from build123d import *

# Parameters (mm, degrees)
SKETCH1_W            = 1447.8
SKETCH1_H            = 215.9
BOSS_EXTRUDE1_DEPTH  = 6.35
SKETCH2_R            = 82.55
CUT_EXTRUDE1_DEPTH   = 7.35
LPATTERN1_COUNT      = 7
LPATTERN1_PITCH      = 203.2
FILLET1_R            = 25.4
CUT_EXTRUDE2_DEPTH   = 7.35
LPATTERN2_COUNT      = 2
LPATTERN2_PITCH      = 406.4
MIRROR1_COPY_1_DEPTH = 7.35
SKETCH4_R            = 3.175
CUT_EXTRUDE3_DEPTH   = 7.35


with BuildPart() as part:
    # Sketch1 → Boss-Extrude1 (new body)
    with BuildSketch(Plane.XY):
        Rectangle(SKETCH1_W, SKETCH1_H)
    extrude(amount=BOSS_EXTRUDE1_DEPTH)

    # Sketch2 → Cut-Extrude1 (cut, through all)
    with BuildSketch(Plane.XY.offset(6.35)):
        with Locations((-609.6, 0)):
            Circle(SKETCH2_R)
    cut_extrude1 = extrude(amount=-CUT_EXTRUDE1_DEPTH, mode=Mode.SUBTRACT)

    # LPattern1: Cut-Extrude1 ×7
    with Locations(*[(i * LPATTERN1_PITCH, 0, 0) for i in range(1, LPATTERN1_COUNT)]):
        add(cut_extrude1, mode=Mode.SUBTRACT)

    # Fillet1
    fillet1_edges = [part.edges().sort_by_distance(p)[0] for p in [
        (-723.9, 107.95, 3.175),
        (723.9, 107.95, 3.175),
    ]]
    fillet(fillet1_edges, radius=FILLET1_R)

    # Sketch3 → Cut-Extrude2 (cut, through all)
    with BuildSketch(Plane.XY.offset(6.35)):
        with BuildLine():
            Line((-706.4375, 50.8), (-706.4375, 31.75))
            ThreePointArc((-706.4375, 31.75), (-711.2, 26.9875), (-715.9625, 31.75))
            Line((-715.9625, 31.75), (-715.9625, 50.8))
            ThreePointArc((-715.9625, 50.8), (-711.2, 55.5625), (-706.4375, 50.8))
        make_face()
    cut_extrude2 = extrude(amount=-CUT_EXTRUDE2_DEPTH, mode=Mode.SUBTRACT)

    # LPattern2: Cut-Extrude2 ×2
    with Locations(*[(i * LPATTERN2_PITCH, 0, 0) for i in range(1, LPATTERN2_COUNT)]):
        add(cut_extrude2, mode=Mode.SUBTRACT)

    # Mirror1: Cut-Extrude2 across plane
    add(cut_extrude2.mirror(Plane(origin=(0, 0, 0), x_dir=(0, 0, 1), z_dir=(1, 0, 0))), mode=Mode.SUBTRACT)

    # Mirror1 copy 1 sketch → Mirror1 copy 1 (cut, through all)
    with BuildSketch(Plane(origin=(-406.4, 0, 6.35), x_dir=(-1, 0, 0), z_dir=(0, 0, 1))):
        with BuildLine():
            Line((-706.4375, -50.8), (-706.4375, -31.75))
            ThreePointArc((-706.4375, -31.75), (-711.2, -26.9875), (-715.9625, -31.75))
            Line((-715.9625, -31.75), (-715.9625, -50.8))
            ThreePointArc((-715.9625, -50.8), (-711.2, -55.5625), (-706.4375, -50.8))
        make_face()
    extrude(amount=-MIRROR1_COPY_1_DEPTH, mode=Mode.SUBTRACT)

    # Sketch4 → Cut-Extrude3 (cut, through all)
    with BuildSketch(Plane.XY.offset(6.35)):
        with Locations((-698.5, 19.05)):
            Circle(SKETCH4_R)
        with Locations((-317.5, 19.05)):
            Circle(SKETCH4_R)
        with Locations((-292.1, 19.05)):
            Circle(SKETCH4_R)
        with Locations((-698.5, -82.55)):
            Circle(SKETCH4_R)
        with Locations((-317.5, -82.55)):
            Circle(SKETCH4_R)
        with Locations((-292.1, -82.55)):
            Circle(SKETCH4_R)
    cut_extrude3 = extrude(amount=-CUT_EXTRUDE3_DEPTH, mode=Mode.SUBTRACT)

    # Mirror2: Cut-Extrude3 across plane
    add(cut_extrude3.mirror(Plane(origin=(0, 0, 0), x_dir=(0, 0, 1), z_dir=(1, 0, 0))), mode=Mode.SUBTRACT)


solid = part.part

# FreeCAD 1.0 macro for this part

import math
import FreeCAD as App
import Part
import Sketcher
Q = App.Units.Quantity


def edges_at(feature, points):
    """Names of the edges that pass closest to the given points."""
    edges = feature.Shape.Edges
    near = lambda p: min(range(len(edges)), key=lambda i: edges[i].distToShape(Part.Vertex(*p))[0])
    return sorted({f"Edge{near(p) + 1}" for p in points})


def add_polygon(sketch, points):
    """Adds a closed chain of lines whose ends are joined by coincident constraints."""
    first, n = sketch.GeometryCount, len(points)
    for a, b in zip(points, points[1:] + points[:1]):
        sketch.addGeometry(Part.LineSegment(App.Vector(*a, 0), App.Vector(*b, 0)), False)
    for i in range(n):
        sketch.addConstraint(Sketcher.Constraint("Coincident", first + i, 2, first + (i + 1) % n, 1))

doc = App.newDocument("Part")
body = doc.addObject("PartDesign::Body", "Body")

# Sketch on XY plane
sketch1 = body.newObject("Sketcher::SketchObject", "Sketch")
sketch1.AttachmentSupport = (doc.getObject("XY_Plane"), [""])
sketch1.MapMode = "FlatFace"
add_polygon(sketch1, [(-724, 108), (-724, -108), (724, -108), (724, 108)])  # lines 0-3
sketch1.addConstraint([
    Sketcher.Constraint("Vertical", 0),
    Sketcher.Constraint("Horizontal", 1),
    Sketcher.Constraint("Vertical", 2),
    Sketcher.Constraint("Horizontal", 3),
    Sketcher.Constraint("Symmetric", 0, 2, 2, 2, -1, 1),
    Sketcher.Constraint("DistanceX", 1, 1, 1, 2, Q("57 in")),
    Sketcher.Constraint("DistanceY", 0, 2, 0, 1, Q("8.5 in")),
])
pad1 = body.newObject("PartDesign::Pad", "Pad")
pad1.Profile = sketch1
pad1.Length = Q("0.25 in")

# Sketch on XY plane
sketch2 = body.newObject("Sketcher::SketchObject", "Sketch001")
sketch2.AttachmentSupport = (doc.getObject("XY_Plane"), [""])
sketch2.MapMode = "FlatFace"
sketch2.AttachmentOffset = App.Placement(App.Vector(0, 0, 0.25 * 25.4), App.Rotation())
sketch2.addGeometry(Part.Circle(App.Vector(-610, 0, 0), App.Vector(0, 0, 1), 83), False)
sketch2.addConstraint([
    Sketcher.Constraint("PointOnObject", 0, 3, -1),
    Sketcher.Constraint("Diameter", 0, Q("6.5 in")),
    Sketcher.Constraint("DistanceX", 0, 3, -1, 1, Q("24 in")),
])
pocket1 = body.newObject("PartDesign::Pocket", "Pocket")
pocket1.Profile = sketch2
pocket1.Type = "ThroughAll"
doc.recompute()

linearpattern = body.newObject("PartDesign::LinearPattern", "LinearPattern")
linearpattern.Originals = [pocket1]
linearpattern.Direction = (doc.getObject("X_Axis"), [""])
linearpattern.Mode = "offset"
linearpattern.Offset = Q("8 in")
linearpattern.Occurrences = 7
body.Tip = linearpattern
doc.recompute()

fillet = body.newObject("PartDesign::Fillet", "Fillet")
fillet.Base = (linearpattern, edges_at(linearpattern, [(-723.9, 107.95, 3.175), (723.9, 107.95, 3.175)]))
fillet.Radius = Q("1 in")

# Sketch on XY plane
sketch3 = body.newObject("Sketcher::SketchObject", "Sketch002")
sketch3.AttachmentSupport = (doc.getObject("XY_Plane"), [""])
sketch3.MapMode = "FlatFace"
sketch3.AttachmentOffset = App.Placement(App.Vector(0, 0, 0.25 * 25.4), App.Rotation())
sketch3.addGeometry([
    Part.LineSegment(App.Vector(-706.4, 31.8, 0), App.Vector(-706.4, 50.8, 0)),
    Part.ArcOfCircle(Part.Circle(App.Vector(-711.2, 50.8, 0), App.Vector(0, 0, 1), 4.8), math.radians(0), math.radians(180)),
    Part.LineSegment(App.Vector(-716, 50.8, 0), App.Vector(-716, 31.8, 0)),
    Part.ArcOfCircle(Part.Circle(App.Vector(-711.2, 31.8, 0), App.Vector(0, 0, 1), 4.8), math.radians(180), math.radians(360)),
], False)
sketch3.addConstraint([
    Sketcher.Constraint("Tangent", 0, 2, 1, 1),
    Sketcher.Constraint("Tangent", 1, 2, 2, 1),
    Sketcher.Constraint("Tangent", 2, 2, 3, 1),
    Sketcher.Constraint("Tangent", 3, 2, 0, 1),
    Sketcher.Constraint("Vertical", 0),
    Sketcher.Constraint("Vertical", 2),
    Sketcher.Constraint("DistanceX", 1, 3, -1, 1, Q("28 in")),
    Sketcher.Constraint("DistanceY", -1, 1, 1, 3, Q("2 in")),
    Sketcher.Constraint("Radius", 1, Q("0.1875 in")),
    Sketcher.Constraint("DistanceY", 0, 1, 0, 2, Q("0.75 in")),
])
pocket2 = body.newObject("PartDesign::Pocket", "Pocket001")
pocket2.Profile = sketch3
pocket2.Type = "ThroughAll"
doc.recompute()

linearpattern2 = body.newObject("PartDesign::LinearPattern", "LinearPattern001")
linearpattern2.Originals = [pocket2]
linearpattern2.Direction = (doc.getObject("X_Axis"), [""])
linearpattern2.Mode = "offset"
linearpattern2.Offset = Q("16 in")
linearpattern2.Occurrences = 2
body.Tip = linearpattern2
doc.recompute()

mirrored = body.newObject("PartDesign::Mirrored", "Mirrored")
mirrored.Originals = [pocket2]
mirrored.MirrorPlane = (doc.getObject("YZ_Plane"), [""])
body.Tip = mirrored

# Sketch on XY plane
sketch4 = body.newObject("Sketcher::SketchObject", "Sketch003")
sketch4.AttachmentSupport = (doc.getObject("XY_Plane"), [""])
sketch4.MapMode = "FlatFace"
sketch4.AttachmentOffset = App.Placement(App.Vector(0, 0, 0.25 * 25.4), App.Rotation())
sketch4.addGeometry([
    Part.LineSegment(App.Vector(300, 50.8, 0), App.Vector(300, 31.8, 0)),
    Part.ArcOfCircle(Part.Circle(App.Vector(304.8, 31.8, 0), App.Vector(0, 0, 1), 4.8), math.radians(180), math.radians(360)),
    Part.LineSegment(App.Vector(309.6, 31.8, 0), App.Vector(309.6, 50.8, 0)),
    Part.ArcOfCircle(Part.Circle(App.Vector(304.8, 50.8, 0), App.Vector(0, 0, 1), 4.8), math.radians(0), math.radians(180)),
], False)
sketch4.addConstraint([
    Sketcher.Constraint("Tangent", 0, 2, 1, 1),
    Sketcher.Constraint("Tangent", 1, 2, 2, 1),
    Sketcher.Constraint("Tangent", 2, 2, 3, 1),
    Sketcher.Constraint("Tangent", 3, 2, 0, 1),
    Sketcher.Constraint("Vertical", 0),
    Sketcher.Constraint("Vertical", 2),
    Sketcher.Constraint("DistanceX", -1, 1, 1, 3, Q("12 in")),
    Sketcher.Constraint("DistanceY", -1, 1, 3, 3, Q("2 in")),
    Sketcher.Constraint("Radius", 1, Q("0.1875 in")),
    Sketcher.Constraint("DistanceY", 0, 2, 0, 1, Q("0.75 in")),
])
pocket3 = body.newObject("PartDesign::Pocket", "Pocket002")
pocket3.Profile = sketch4
pocket3.Type = "ThroughAll"

# Sketch on XY plane
sketch5 = body.newObject("Sketcher::SketchObject", "Sketch004")
sketch5.AttachmentSupport = (doc.getObject("XY_Plane"), [""])
sketch5.MapMode = "FlatFace"
sketch5.AttachmentOffset = App.Placement(App.Vector(0, 0, 0.25 * 25.4), App.Rotation())
sketch5.addGeometry([
    Part.Circle(App.Vector(-698.5, 19.1, 0), App.Vector(0, 0, 1), 3.2),  # 0
    Part.Circle(App.Vector(-317.5, 19.1, 0), App.Vector(0, 0, 1), 3.2),  # 1
    Part.Circle(App.Vector(-292.1, 19.1, 0), App.Vector(0, 0, 1), 3.2),  # 2
    Part.Circle(App.Vector(-698.5, -82.5, 0), App.Vector(0, 0, 1), 3.2),  # 3
    Part.Circle(App.Vector(-317.5, -82.5, 0), App.Vector(0, 0, 1), 3.2),  # 4
    Part.Circle(App.Vector(-292.1, -82.5, 0), App.Vector(0, 0, 1), 3.2),  # 5
], False)
sketch5.addConstraint([
    Sketcher.Constraint("Equal", 0, 1),
    Sketcher.Constraint("Equal", 1, 2),
    Sketcher.Constraint("Equal", 2, 3),
    Sketcher.Constraint("Equal", 3, 4),
    Sketcher.Constraint("Equal", 4, 5),
    Sketcher.Constraint("Horizontal", 0, 3, 1, 3),
    Sketcher.Constraint("Horizontal", 1, 3, 2, 3),
    Sketcher.Constraint("Horizontal", 3, 3, 4, 3),
    Sketcher.Constraint("Horizontal", 4, 3, 5, 3),
    Sketcher.Constraint("Vertical", 0, 3, 3, 3),
    Sketcher.Constraint("Vertical", 1, 3, 4, 3),
    Sketcher.Constraint("Vertical", 2, 3, 5, 3),
    Sketcher.Constraint("Diameter", 0, Q("0.25 in")),
    Sketcher.Constraint("DistanceX", 0, 3, 1, 3, Q("15 in")),
    Sketcher.Constraint("DistanceX", 1, 3, 2, 3, Q("1 in")),
    Sketcher.Constraint("DistanceY", 3, 3, 0, 3, Q("4 in")),
    Sketcher.Constraint("DistanceX", 0, 3, -1, 1, Q("27.5 in")),
    Sketcher.Constraint("DistanceY", -1, 1, 0, 3, Q("0.75 in")),
])
pocket4 = body.newObject("PartDesign::Pocket", "Pocket003")
pocket4.Profile = sketch5
pocket4.Type = "ThroughAll"
doc.recompute()

mirrored2 = body.newObject("PartDesign::Mirrored", "Mirrored001")
mirrored2.Originals = [pocket4]
mirrored2.MirrorPlane = (doc.getObject("YZ_Plane"), [""])
body.Tip = mirrored2

doc.recompute()
